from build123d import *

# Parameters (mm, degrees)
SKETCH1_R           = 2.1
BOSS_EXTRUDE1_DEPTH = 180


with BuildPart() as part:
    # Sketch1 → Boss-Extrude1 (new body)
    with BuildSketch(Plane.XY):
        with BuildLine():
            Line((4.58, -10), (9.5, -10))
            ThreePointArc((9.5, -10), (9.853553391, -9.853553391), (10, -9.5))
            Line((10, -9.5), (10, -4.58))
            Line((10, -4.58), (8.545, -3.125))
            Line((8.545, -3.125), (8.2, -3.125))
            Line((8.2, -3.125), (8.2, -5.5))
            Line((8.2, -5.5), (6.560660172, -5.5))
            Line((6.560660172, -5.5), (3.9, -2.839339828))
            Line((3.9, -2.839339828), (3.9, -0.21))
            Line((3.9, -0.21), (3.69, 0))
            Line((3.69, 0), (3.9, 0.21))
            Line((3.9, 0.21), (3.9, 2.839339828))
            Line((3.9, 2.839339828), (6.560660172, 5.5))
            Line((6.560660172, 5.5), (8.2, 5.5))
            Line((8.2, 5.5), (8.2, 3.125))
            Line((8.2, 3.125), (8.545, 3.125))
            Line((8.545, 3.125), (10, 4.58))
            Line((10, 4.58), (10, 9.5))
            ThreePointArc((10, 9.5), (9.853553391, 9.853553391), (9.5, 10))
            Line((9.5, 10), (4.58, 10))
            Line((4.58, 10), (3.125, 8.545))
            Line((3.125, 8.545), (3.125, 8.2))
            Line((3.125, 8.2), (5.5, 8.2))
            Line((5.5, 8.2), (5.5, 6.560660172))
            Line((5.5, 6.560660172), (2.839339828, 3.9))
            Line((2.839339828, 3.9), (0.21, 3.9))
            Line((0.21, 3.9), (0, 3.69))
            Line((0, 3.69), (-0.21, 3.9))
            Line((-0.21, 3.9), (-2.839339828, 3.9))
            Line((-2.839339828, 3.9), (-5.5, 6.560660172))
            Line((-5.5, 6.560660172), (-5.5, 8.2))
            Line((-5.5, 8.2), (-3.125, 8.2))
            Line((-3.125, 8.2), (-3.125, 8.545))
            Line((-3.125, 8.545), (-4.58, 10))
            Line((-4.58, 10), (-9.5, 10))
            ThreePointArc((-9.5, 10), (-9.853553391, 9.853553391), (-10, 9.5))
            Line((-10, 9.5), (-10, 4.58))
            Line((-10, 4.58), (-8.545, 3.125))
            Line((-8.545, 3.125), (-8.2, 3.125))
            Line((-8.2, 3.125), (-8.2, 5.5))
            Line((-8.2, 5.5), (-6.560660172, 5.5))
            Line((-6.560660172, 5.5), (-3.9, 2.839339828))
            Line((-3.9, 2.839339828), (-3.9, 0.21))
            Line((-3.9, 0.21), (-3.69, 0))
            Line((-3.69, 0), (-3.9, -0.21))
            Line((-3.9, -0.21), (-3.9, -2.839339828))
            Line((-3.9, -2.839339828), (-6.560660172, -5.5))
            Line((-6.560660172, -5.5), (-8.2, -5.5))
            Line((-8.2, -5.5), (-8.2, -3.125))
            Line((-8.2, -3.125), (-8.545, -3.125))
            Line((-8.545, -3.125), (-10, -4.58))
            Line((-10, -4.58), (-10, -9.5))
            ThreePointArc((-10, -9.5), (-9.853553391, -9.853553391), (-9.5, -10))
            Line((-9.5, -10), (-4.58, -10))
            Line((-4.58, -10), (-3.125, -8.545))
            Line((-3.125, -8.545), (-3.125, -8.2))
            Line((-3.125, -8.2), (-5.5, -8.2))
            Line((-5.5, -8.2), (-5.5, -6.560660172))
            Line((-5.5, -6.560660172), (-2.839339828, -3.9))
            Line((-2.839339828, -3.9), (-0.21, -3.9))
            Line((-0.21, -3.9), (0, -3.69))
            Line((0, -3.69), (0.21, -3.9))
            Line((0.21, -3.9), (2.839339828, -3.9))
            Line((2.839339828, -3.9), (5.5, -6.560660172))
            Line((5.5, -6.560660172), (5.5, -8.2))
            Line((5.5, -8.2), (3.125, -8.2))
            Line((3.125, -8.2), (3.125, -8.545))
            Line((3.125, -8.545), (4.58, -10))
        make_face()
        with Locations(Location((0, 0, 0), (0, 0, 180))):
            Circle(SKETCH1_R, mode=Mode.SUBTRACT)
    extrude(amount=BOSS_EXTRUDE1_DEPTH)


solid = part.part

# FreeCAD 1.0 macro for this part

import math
import FreeCAD as App
import Part
import Sketcher
from FreeCAD import Vector
Q = App.Units.Quantity

doc = App.newDocument("Part")
body = doc.addObject("PartDesign::Body", "Body")

# Sketch on XY plane
sketch1 = body.newObject("Sketcher::SketchObject", "Sketch")
sketch1.AttachmentSupport = (doc.getObject("XY_Plane"), [""])
sketch1.MapMode = "FlatFace"
sketch1.addGeometry([
    Part.LineSegment(Vector(4.58, -10, 0), Vector(9.5, -10, 0)),  # 0
    Part.ArcOfCircle(Part.Circle(Vector(9.5, -9.5, 0), Vector(0, 0, 1), 0.5), math.radians(-90), math.radians(0)),  # 1
    Part.LineSegment(Vector(10, -9.5, 0), Vector(10, -4.58, 0)),  # 2
    Part.LineSegment(Vector(10, -4.58, 0), Vector(8.545, -3.125, 0)),  # 3
    Part.LineSegment(Vector(8.545, -3.125, 0), Vector(8.2, -3.125, 0)),  # 4
    Part.LineSegment(Vector(8.2, -3.125, 0), Vector(8.2, -5.5, 0)),  # 5
    Part.LineSegment(Vector(8.2, -5.5, 0), Vector(6.56066, -5.5, 0)),  # 6
    Part.LineSegment(Vector(6.56066, -5.5, 0), Vector(3.9, -2.83934, 0)),  # 7
    Part.LineSegment(Vector(3.9, -2.83934, 0), Vector(3.9, -0.21, 0)),  # 8
    Part.LineSegment(Vector(3.9, -0.21, 0), Vector(3.69, 0, 0)),  # 9
    Part.LineSegment(Vector(3.69, 0, 0), Vector(3.9, 0.21, 0)),  # 10
    Part.LineSegment(Vector(3.9, 0.21, 0), Vector(3.9, 2.83934, 0)),  # 11
    Part.LineSegment(Vector(3.9, 2.83934, 0), Vector(6.56066, 5.5, 0)),  # 12
    Part.LineSegment(Vector(6.56066, 5.5, 0), Vector(8.2, 5.5, 0)),  # 13
    Part.LineSegment(Vector(8.2, 5.5, 0), Vector(8.2, 3.125, 0)),  # 14
    Part.LineSegment(Vector(8.2, 3.125, 0), Vector(8.545, 3.125, 0)),  # 15
    Part.LineSegment(Vector(8.545, 3.125, 0), Vector(10, 4.58, 0)),  # 16
    Part.LineSegment(Vector(10, 4.58, 0), Vector(10, 9.5, 0)),  # 17
    Part.ArcOfCircle(Part.Circle(Vector(9.5, 9.5, 0), Vector(0, 0, 1), 0.5), math.radians(0), math.radians(90)),  # 18
    Part.LineSegment(Vector(9.5, 10, 0), Vector(4.58, 10, 0)),  # 19
    Part.LineSegment(Vector(4.58, 10, 0), Vector(3.125, 8.545, 0)),  # 20
    Part.LineSegment(Vector(3.125, 8.545, 0), Vector(3.125, 8.2, 0)),  # 21
    Part.LineSegment(Vector(3.125, 8.2, 0), Vector(5.5, 8.2, 0)),  # 22
    Part.LineSegment(Vector(5.5, 8.2, 0), Vector(5.5, 6.56066, 0)),  # 23
    Part.LineSegment(Vector(5.5, 6.56066, 0), Vector(2.83934, 3.9, 0)),  # 24
    Part.LineSegment(Vector(2.83934, 3.9, 0), Vector(0.21, 3.9, 0)),  # 25
    Part.LineSegment(Vector(0.21, 3.9, 0), Vector(0, 3.69, 0)),  # 26
    Part.LineSegment(Vector(0, 3.69, 0), Vector(-0.21, 3.9, 0)),  # 27
    Part.LineSegment(Vector(-0.21, 3.9, 0), Vector(-2.83934, 3.9, 0)),  # 28
    Part.LineSegment(Vector(-2.83934, 3.9, 0), Vector(-5.5, 6.56066, 0)),  # 29
    Part.LineSegment(Vector(-5.5, 6.56066, 0), Vector(-5.5, 8.2, 0)),  # 30
    Part.LineSegment(Vector(-5.5, 8.2, 0), Vector(-3.125, 8.2, 0)),  # 31
    Part.LineSegment(Vector(-3.125, 8.2, 0), Vector(-3.125, 8.545, 0)),  # 32
    Part.LineSegment(Vector(-3.125, 8.545, 0), Vector(-4.58, 10, 0)),  # 33
    Part.LineSegment(Vector(-4.58, 10, 0), Vector(-9.5, 10, 0)),  # 34
    Part.ArcOfCircle(Part.Circle(Vector(-9.5, 9.5, 0), Vector(0, 0, 1), 0.5), math.radians(90), math.radians(180)),  # 35
    Part.LineSegment(Vector(-10, 9.5, 0), Vector(-10, 4.58, 0)),  # 36
    Part.LineSegment(Vector(-10, 4.58, 0), Vector(-8.545, 3.125, 0)),  # 37
    Part.LineSegment(Vector(-8.545, 3.125, 0), Vector(-8.2, 3.125, 0)),  # 38
    Part.LineSegment(Vector(-8.2, 3.125, 0), Vector(-8.2, 5.5, 0)),  # 39
    Part.LineSegment(Vector(-8.2, 5.5, 0), Vector(-6.56066, 5.5, 0)),  # 40
    Part.LineSegment(Vector(-6.56066, 5.5, 0), Vector(-3.9, 2.83934, 0)),  # 41
    Part.LineSegment(Vector(-3.9, 2.83934, 0), Vector(-3.9, 0.21, 0)),  # 42
    Part.LineSegment(Vector(-3.9, 0.21, 0), Vector(-3.69, 0, 0)),  # 43
    Part.LineSegment(Vector(-3.69, 0, 0), Vector(-3.9, -0.21, 0)),  # 44
    Part.LineSegment(Vector(-3.9, -0.21, 0), Vector(-3.9, -2.83934, 0)),  # 45
    Part.LineSegment(Vector(-3.9, -2.83934, 0), Vector(-6.56066, -5.5, 0)),  # 46
    Part.LineSegment(Vector(-6.56066, -5.5, 0), Vector(-8.2, -5.5, 0)),  # 47
    Part.LineSegment(Vector(-8.2, -5.5, 0), Vector(-8.2, -3.125, 0)),  # 48
    Part.LineSegment(Vector(-8.2, -3.125, 0), Vector(-8.545, -3.125, 0)),  # 49
    Part.LineSegment(Vector(-8.545, -3.125, 0), Vector(-10, -4.58, 0)),  # 50
    Part.LineSegment(Vector(-10, -4.58, 0), Vector(-10, -9.5, 0)),  # 51
    Part.ArcOfCircle(Part.Circle(Vector(-9.5, -9.5, 0), Vector(0, 0, 1), 0.5), math.radians(180), math.radians(270)),  # 52
    Part.LineSegment(Vector(-9.5, -10, 0), Vector(-4.58, -10, 0)),  # 53
    Part.LineSegment(Vector(-4.58, -10, 0), Vector(-3.125, -8.545, 0)),  # 54
    Part.LineSegment(Vector(-3.125, -8.545, 0), Vector(-3.125, -8.2, 0)),  # 55
    Part.LineSegment(Vector(-3.125, -8.2, 0), Vector(-5.5, -8.2, 0)),  # 56
    Part.LineSegment(Vector(-5.5, -8.2, 0), Vector(-5.5, -6.56066, 0)),  # 57
    Part.LineSegment(Vector(-5.5, -6.56066, 0), Vector(-2.83934, -3.9, 0)),  # 58
    Part.LineSegment(Vector(-2.83934, -3.9, 0), Vector(-0.21, -3.9, 0)),  # 59
    Part.LineSegment(Vector(-0.21, -3.9, 0), Vector(0, -3.69, 0)),  # 60
    Part.LineSegment(Vector(0, -3.69, 0), Vector(0.21, -3.9, 0)),  # 61
    Part.LineSegment(Vector(0.21, -3.9, 0), Vector(2.83934, -3.9, 0)),  # 62
    Part.LineSegment(Vector(2.83934, -3.9, 0), Vector(5.5, -6.56066, 0)),  # 63
    Part.LineSegment(Vector(5.5, -6.56066, 0), Vector(5.5, -8.2, 0)),  # 64
    Part.LineSegment(Vector(5.5, -8.2, 0), Vector(3.125, -8.2, 0)),  # 65
    Part.LineSegment(Vector(3.125, -8.2, 0), Vector(3.125, -8.545, 0)),  # 66
    Part.LineSegment(Vector(3.125, -8.545, 0), Vector(4.58, -10, 0)),  # 67
    Part.Circle(Vector(0, 0, 0), Vector(0, 0, 1), 2.1),  # 68
], False)
sketch1.addConstraint([
    Sketcher.Constraint("Tangent", 0, 2, 1, 1),
    Sketcher.Constraint("Tangent", 1, 2, 2, 1),
    Sketcher.Constraint("Coincident", 2, 2, 3, 1),
    Sketcher.Constraint("Coincident", 3, 2, 4, 1),
    Sketcher.Constraint("Coincident", 4, 2, 5, 1),
    Sketcher.Constraint("Coincident", 5, 2, 6, 1),
    Sketcher.Constraint("Coincident", 6, 2, 7, 1),
    Sketcher.Constraint("Coincident", 7, 2, 8, 1),
    Sketcher.Constraint("Coincident", 8, 2, 9, 1),
    Sketcher.Constraint("Coincident", 9, 2, 10, 1),
    Sketcher.Constraint("Coincident", 10, 2, 11, 1),
    Sketcher.Constraint("Coincident", 11, 2, 12, 1),
    Sketcher.Constraint("Coincident", 12, 2, 13, 1),
    Sketcher.Constraint("Coincident", 13, 2, 14, 1),
    Sketcher.Constraint("Coincident", 14, 2, 15, 1),
    Sketcher.Constraint("Coincident", 15, 2, 16, 1),
    Sketcher.Constraint("Coincident", 16, 2, 17, 1),
    Sketcher.Constraint("Tangent", 17, 2, 18, 1),
    Sketcher.Constraint("Tangent", 18, 2, 19, 1),
    Sketcher.Constraint("Coincident", 19, 2, 20, 1),
    Sketcher.Constraint("Coincident", 20, 2, 21, 1),
    Sketcher.Constraint("Coincident", 21, 2, 22, 1),
    Sketcher.Constraint("Coincident", 22, 2, 23, 1),
    Sketcher.Constraint("Coincident", 23, 2, 24, 1),
    Sketcher.Constraint("Coincident", 24, 2, 25, 1),
    Sketcher.Constraint("Coincident", 25, 2, 26, 1),
    Sketcher.Constraint("Coincident", 26, 2, 27, 1),
    Sketcher.Constraint("Coincident", 27, 2, 28, 1),
    Sketcher.Constraint("Coincident", 28, 2, 29, 1),
    Sketcher.Constraint("Coincident", 29, 2, 30, 1),
    Sketcher.Constraint("Coincident", 30, 2, 31, 1),
    Sketcher.Constraint("Coincident", 31, 2, 32, 1),
    Sketcher.Constraint("Coincident", 32, 2, 33, 1),
    Sketcher.Constraint("Coincident", 33, 2, 34, 1),
    Sketcher.Constraint("Tangent", 34, 2, 35, 1),
    Sketcher.Constraint("Tangent", 35, 2, 36, 1),
    Sketcher.Constraint("Coincident", 36, 2, 37, 1),
    Sketcher.Constraint("Coincident", 37, 2, 38, 1),
    Sketcher.Constraint("Coincident", 38, 2, 39, 1),
    Sketcher.Constraint("Coincident", 39, 2, 40, 1),
    Sketcher.Constraint("Coincident", 40, 2, 41, 1),
    Sketcher.Constraint("Coincident", 41, 2, 42, 1),
    Sketcher.Constraint("Coincident", 42, 2, 43, 1),
    Sketcher.Constraint("Coincident", 43, 2, 44, 1),
    Sketcher.Constraint("Coincident", 44, 2, 45, 1),
    Sketcher.Constraint("Coincident", 45, 2, 46, 1),
    Sketcher.Constraint("Coincident", 46, 2, 47, 1),
    Sketcher.Constraint("Coincident", 47, 2, 48, 1),
    Sketcher.Constraint("Coincident", 48, 2, 49, 1),
    Sketcher.Constraint("Coincident", 49, 2, 50, 1),
    Sketcher.Constraint("Coincident", 50, 2, 51, 1),
    Sketcher.Constraint("Tangent", 51, 2, 52, 1),
    Sketcher.Constraint("Tangent", 52, 2, 53, 1),
    Sketcher.Constraint("Coincident", 53, 2, 54, 1),
    Sketcher.Constraint("Coincident", 54, 2, 55, 1),
    Sketcher.Constraint("Coincident", 55, 2, 56, 1),
    Sketcher.Constraint("Coincident", 56, 2, 57, 1),
    Sketcher.Constraint("Coincident", 57, 2, 58, 1),
    Sketcher.Constraint("Coincident", 58, 2, 59, 1),
    Sketcher.Constraint("Coincident", 59, 2, 60, 1),
    Sketcher.Constraint("Coincident", 60, 2, 61, 1),
    Sketcher.Constraint("Coincident", 61, 2, 62, 1),
    Sketcher.Constraint("Coincident", 62, 2, 63, 1),
    Sketcher.Constraint("Coincident", 63, 2, 64, 1),
    Sketcher.Constraint("Coincident", 64, 2, 65, 1),
    Sketcher.Constraint("Coincident", 65, 2, 66, 1),
    Sketcher.Constraint("Coincident", 66, 2, 67, 1),
    Sketcher.Constraint("Coincident", 67, 2, 0, 1),
    Sketcher.Constraint("Horizontal", 0),
    Sketcher.Constraint("Vertical", 2),
    Sketcher.Constraint("Horizontal", 4),
    Sketcher.Constraint("Vertical", 5),
    Sketcher.Constraint("Horizontal", 6),
    Sketcher.Constraint("Vertical", 8),
    Sketcher.Constraint("Vertical", 11),
    Sketcher.Constraint("Horizontal", 13),
    Sketcher.Constraint("Vertical", 14),
    Sketcher.Constraint("Horizontal", 15),
    Sketcher.Constraint("Vertical", 17),
    Sketcher.Constraint("Horizontal", 19),
    Sketcher.Constraint("Vertical", 21),
    Sketcher.Constraint("Horizontal", 22),
    Sketcher.Constraint("Vertical", 23),
    Sketcher.Constraint("Horizontal", 25),
    Sketcher.Constraint("Horizontal", 28),
    Sketcher.Constraint("Vertical", 30),
    Sketcher.Constraint("Horizontal", 31),
    Sketcher.Constraint("Vertical", 32),
    Sketcher.Constraint("Horizontal", 34),
    Sketcher.Constraint("Vertical", 36),
    Sketcher.Constraint("Horizontal", 38),
    Sketcher.Constraint("Vertical", 39),
    Sketcher.Constraint("Horizontal", 40),
    Sketcher.Constraint("Vertical", 42),
    Sketcher.Constraint("Vertical", 45),
    Sketcher.Constraint("Horizontal", 47),
    Sketcher.Constraint("Vertical", 48),
    Sketcher.Constraint("Horizontal", 49),
    Sketcher.Constraint("Vertical", 51),
    Sketcher.Constraint("Horizontal", 53),
    Sketcher.Constraint("Vertical", 55),
    Sketcher.Constraint("Horizontal", 56),
    Sketcher.Constraint("Vertical", 57),
    Sketcher.Constraint("Horizontal", 59),
    Sketcher.Constraint("Horizontal", 62),
    Sketcher.Constraint("Vertical", 64),
    Sketcher.Constraint("Horizontal", 65),
    Sketcher.Constraint("Vertical", 66),
    Sketcher.Constraint("Coincident", 68, 3, -1, 1),
    Sketcher.Constraint("Equal", 1, 18),
    Sketcher.Constraint("Equal", 18, 35),
    Sketcher.Constraint("Equal", 35, 52),
    Sketcher.Constraint("Symmetric", 1, 3, 35, 3, -1, 1),
    Sketcher.Constraint("Symmetric", 18, 3, 52, 3, -1, 1),
    Sketcher.Constraint("Symmetric", 3, 2, 37, 2, -1, 1),
    Sketcher.Constraint("Symmetric", 5, 2, 39, 2, -1, 1),
    Sketcher.Constraint("Symmetric", 7, 2, 41, 2, -1, 1),
    Sketcher.Constraint("Symmetric", 9, 2, 43, 2, -1, 1),
    Sketcher.Constraint("Symmetric", 10, 2, 44, 2, -1, 1),
    Sketcher.Constraint("Symmetric", 12, 2, 46, 2, -1, 1),
    Sketcher.Constraint("Symmetric", 14, 2, 48, 2, -1, 1),
    Sketcher.Constraint("Symmetric", 20, 2, 54, 2, -1, 1),
    Sketcher.Constraint("Symmetric", 22, 2, 56, 2, -1, 1),
    Sketcher.Constraint("Symmetric", 24, 2, 58, 2, -1, 1),
    Sketcher.Constraint("Symmetric", 26, 2, 60, 2, -1, 1),
    Sketcher.Constraint("Symmetric", 27, 2, 61, 2, -1, 1),
    Sketcher.Constraint("Symmetric", 29, 2, 63, 2, -1, 1),
    Sketcher.Constraint("Symmetric", 31, 2, 65, 2, -1, 1),
    Sketcher.Constraint("Symmetric", 18, 3, 35, 3, -2),
    Sketcher.Constraint("Symmetric", 25, 2, 27, 2, -2),
    Sketcher.Constraint("Symmetric", 23, 2, 29, 2, -2),
    Sketcher.Constraint("Symmetric", 21, 2, 31, 2, -2),
    Sketcher.Constraint("Symmetric", 15, 2, 37, 2, -2),
    Sketcher.Constraint("Symmetric", 13, 2, 39, 2, -2),
    Sketcher.Constraint("Symmetric", 11, 2, 41, 2, -2),
    Sketcher.Constraint("PointOnObject", 9, 2, -1),
    Sketcher.Constraint("PointOnObject", 26, 2, -2),
    Sketcher.Constraint("Parallel", 3, 7),
    Sketcher.Constraint("Parallel", 7, 9),
    Sketcher.Constraint("Perpendicular", 9, 10),
    Sketcher.Constraint("Parallel", 10, 12),
    Sketcher.Constraint("Parallel", 12, 16),
    Sketcher.Constraint("Parallel", 16, 20),
    Sketcher.Constraint("Parallel", 20, 24),
    Sketcher.Constraint("Parallel", 24, 26),
    Sketcher.Constraint("Perpendicular", 26, 27),
    Sketcher.Constraint("Parallel", 27, 29),
    Sketcher.Constraint("Parallel", 29, 33),
    Sketcher.Constraint("Parallel", 33, 37),
    Sketcher.Constraint("Parallel", 37, 41),
    Sketcher.Constraint("Parallel", 41, 43),
    Sketcher.Constraint("Parallel", 44, 46),
    Sketcher.Constraint("Parallel", 46, 50),
    Sketcher.Constraint("Parallel", 50, 54),
    Sketcher.Constraint("Parallel", 54, 58),
    Sketcher.Constraint("Parallel", 58, 60),
    Sketcher.Constraint("Parallel", 61, 63),
    Sketcher.Constraint("Parallel", 63, 67),
    Sketcher.Constraint("Horizontal", 20, 2, 32, 2),
    Sketcher.Constraint("Horizontal", 2, 2, 50, 2),
    Sketcher.Constraint("Horizontal", 54, 2, 66, 2),
    Sketcher.Constraint("Equal", 53, 2),
    Sketcher.Constraint("Equal", 65, 5),
    Sketcher.Constraint("Equal", 62, 8),
    Sketcher.Constraint("Equal", 49, 21),
    Sketcher.Constraint("Equal", 47, 23),
    Sketcher.Constraint("Equal", 16, 20),
    Sketcher.Constraint("Equal", 12, 24),
    Sketcher.Constraint("Equal", 10, 26),
    Sketcher.Constraint("Diameter", 68, Q("4.2 mm")),
    Sketcher.Constraint("Radius", 1, Q("0.5 mm")),
    Sketcher.Constraint("DistanceY", 0, 2, -1, 1, Q("10 mm")),
    Sketcher.Constraint("DistanceX", 0, 1, 0, 2, Q("4.92 mm")),
    Sketcher.Constraint("DistanceX", -1, 1, 4, 2, Q("8.2 mm")),
    Sketcher.Constraint("DistanceY", 5, 2, -1, 1, Q("5.5 mm")),
    Sketcher.Constraint("DistanceX", -1, 1, 7, 2, Q("3.9 mm")),
    Sketcher.Constraint("DistanceX", 4, 2, 4, 1, Q("0.345 mm")),
    Sketcher.Constraint("DistanceY", 8, 2, -1, 1, Q("0.21 mm")),
    Sketcher.Constraint("DistanceX", 6, 2, 6, 1, Q("1.63934 mm")),
])
pad1 = body.newObject("PartDesign::Pad", "Pad")
pad1.Profile = sketch1
pad1.Length = 180

doc.recompute()
